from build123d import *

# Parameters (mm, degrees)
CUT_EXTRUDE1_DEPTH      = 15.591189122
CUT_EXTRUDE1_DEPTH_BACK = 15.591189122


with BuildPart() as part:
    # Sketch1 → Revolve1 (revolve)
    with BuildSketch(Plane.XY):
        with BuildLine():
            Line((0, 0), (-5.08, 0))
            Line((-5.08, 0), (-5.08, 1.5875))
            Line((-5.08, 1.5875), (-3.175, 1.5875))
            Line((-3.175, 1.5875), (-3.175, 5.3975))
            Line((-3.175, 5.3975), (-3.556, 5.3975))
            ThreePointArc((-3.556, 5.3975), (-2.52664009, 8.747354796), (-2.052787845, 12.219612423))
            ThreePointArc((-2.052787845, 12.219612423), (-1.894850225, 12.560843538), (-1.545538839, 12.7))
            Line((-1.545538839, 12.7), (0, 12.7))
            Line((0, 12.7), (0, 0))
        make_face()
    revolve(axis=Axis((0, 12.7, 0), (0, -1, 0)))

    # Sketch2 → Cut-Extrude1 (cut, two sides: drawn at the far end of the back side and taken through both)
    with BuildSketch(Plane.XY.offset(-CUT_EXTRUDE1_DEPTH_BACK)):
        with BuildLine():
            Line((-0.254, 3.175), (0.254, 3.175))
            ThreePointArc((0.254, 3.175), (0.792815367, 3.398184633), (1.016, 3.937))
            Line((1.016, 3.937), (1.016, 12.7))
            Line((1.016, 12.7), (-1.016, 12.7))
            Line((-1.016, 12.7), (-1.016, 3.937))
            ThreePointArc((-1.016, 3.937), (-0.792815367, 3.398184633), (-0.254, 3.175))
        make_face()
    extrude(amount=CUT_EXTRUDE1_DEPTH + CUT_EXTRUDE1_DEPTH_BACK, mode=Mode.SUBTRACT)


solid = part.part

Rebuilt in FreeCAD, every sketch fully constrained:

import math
import FreeCAD as App
import Part
import Sketcher

V = App.Vector
Q = App.Units.Quantity

doc = App.newDocument("Part")
body = doc.addObject("PartDesign::Body", "Body")

# Sketch on XY plane
sketch1 = body.newObject("Sketcher::SketchObject", "Sketch")
sketch1.AttachmentSupport = (doc.getObject("XY_Plane"), [""])
sketch1.MapMode = "FlatFace"
sketch1.addGeometry([
    Part.LineSegment(V(-5.08, 0, 0), V(0, 0, 0)),  # 0
    Part.LineSegment(V(0, 0, 0), V(0, 12.7, 0)),  # 1
    Part.LineSegment(V(0, 12.7, 0), V(-1.55, 12.7, 0)),  # 2
    Part.ArcOfCircle(Part.Circle(V(-1.55, 12.19, 0), V(0, 0, 1), 0.51), math.radians(90), math.radians(177)),  # 3
    Part.ArcOfCircle(Part.Circle(V(-23.61, 13.39, 0), V(0, 0, 1), 21.59), math.radians(-21.74), math.radians(-3.12)),  # 4
    Part.LineSegment(V(-3.56, 5.4, 0), V(-3.17, 5.4, 0)),  # 5
    Part.LineSegment(V(-3.17, 5.4, 0), V(-3.17, 1.59, 0)),  # 6
    Part.LineSegment(V(-3.17, 1.59, 0), V(-5.08, 1.59, 0)),  # 7
    Part.LineSegment(V(-5.08, 1.59, 0), V(-5.08, 0, 0)),  # 8
], False)
sketch1.addConstraint([
    Sketcher.Constraint("Coincident", 0, 2, 1, 1),
    Sketcher.Constraint("Coincident", 1, 2, 2, 1),
    Sketcher.Constraint("Tangent", 2, 2, 3, 1),
    Sketcher.Constraint("Tangent", 3, 2, 4, 2),
    Sketcher.Constraint("Coincident", 4, 1, 5, 1),
    Sketcher.Constraint("Coincident", 5, 2, 6, 1),
    Sketcher.Constraint("Coincident", 6, 2, 7, 1),
    Sketcher.Constraint("Coincident", 7, 2, 8, 1),
    Sketcher.Constraint("Coincident", 8, 2, 0, 1),
    Sketcher.Constraint("Horizontal", 0),
    Sketcher.Constraint("Vertical", 1),
    Sketcher.Constraint("Horizontal", 2),
    Sketcher.Constraint("Horizontal", 5),
    Sketcher.Constraint("Vertical", 6),
    Sketcher.Constraint("Horizontal", 7),
    Sketcher.Constraint("Vertical", 8),
    Sketcher.Constraint("Coincident", 0, 2, -1, 1),
    Sketcher.Constraint("Radius", 3, Q("0.02 in")),
    Sketcher.Constraint("Radius", 4, Q("0.85 in")),
    Sketcher.Constraint("DistanceX", 0, 1, 0, 2, Q("0.2 in")),
    Sketcher.Constraint("DistanceY", 1, 1, 1, 2, Q("0.5 in")),
    Sketcher.Constraint("DistanceY", 6, 2, 6, 1, Q("0.15 in")),
    Sketcher.Constraint("DistanceX", 5, 1, 5, 2, Q("0.015 in")),
    Sketcher.Constraint("DistanceX", 7, 2, 7, 1, Q("0.075 in")),
    Sketcher.Constraint("DistanceY", 8, 2, 8, 1, Q("0.0625 in")),
    Sketcher.Constraint("DistanceX", 2, 2, 2, 1, 1.545539),
])
revolution = body.newObject("PartDesign::Revolution", "Revolution")
revolution.Profile = sketch1
revolution.ReferenceAxis = (sketch1, ["V_Axis"])
revolution.Angle = 360

# Sketch on XY plane
sketch2 = body.newObject("Sketcher::SketchObject", "Sketch001")
sketch2.AttachmentSupport = (doc.getObject("XY_Plane"), [""])
sketch2.MapMode = "FlatFace"
sketch2.addGeometry([
    Part.LineSegment(V(-0.3, 3.2, 0), V(0.3, 3.2, 0)),  # 0
    Part.ArcOfCircle(Part.Circle(V(0.3, 3.9, 0), V(0, 0, 1), 0.8), math.radians(-90), math.radians(0)),  # 1
    Part.LineSegment(V(1, 3.9, 0), V(1, 12.7, 0)),  # 2
    Part.LineSegment(V(1, 12.7, 0), V(-1, 12.7, 0)),  # 3
    Part.LineSegment(V(-1, 12.7, 0), V(-1, 3.9, 0)),  # 4
    Part.ArcOfCircle(Part.Circle(V(-0.3, 3.9, 0), V(0, 0, 1), 0.8), math.radians(-180), math.radians(-90)),  # 5
], False)
sketch2.addConstraint([
    Sketcher.Constraint("Tangent", 0, 2, 1, 1),
    Sketcher.Constraint("Tangent", 1, 2, 2, 1),
    Sketcher.Constraint("Coincident", 2, 2, 3, 1),
    Sketcher.Constraint("Coincident", 3, 2, 4, 1),
    Sketcher.Constraint("Tangent", 4, 2, 5, 1),
    Sketcher.Constraint("Tangent", 5, 2, 0, 1),
    Sketcher.Constraint("Horizontal", 0),
    Sketcher.Constraint("Vertical", 2),
    Sketcher.Constraint("Horizontal", 3),
    Sketcher.Constraint("Vertical", 4),
    Sketcher.Constraint("Equal", 1, 5),
    Sketcher.Constraint("Radius", 1, Q("0.03 in")),
    Sketcher.Constraint("DistanceX", 0, 1, 0, 2, Q("0.02 in")),
    Sketcher.Constraint("DistanceY", -1, 1, 2, 2, Q("0.5 in")),
    Sketcher.Constraint("DistanceY", 2, 1, 2, 2, Q("0.345 in")),
    Sketcher.Constraint("DistanceX", -1, 1, 1, 3, Q("0.01 in")),
])
pocket1 = body.newObject("PartDesign::Pocket", "Pocket")
pocket1.Profile = sketch2
pocket1.Type = "ThroughAll"
pocket1.Midplane = True

doc.recompute()
